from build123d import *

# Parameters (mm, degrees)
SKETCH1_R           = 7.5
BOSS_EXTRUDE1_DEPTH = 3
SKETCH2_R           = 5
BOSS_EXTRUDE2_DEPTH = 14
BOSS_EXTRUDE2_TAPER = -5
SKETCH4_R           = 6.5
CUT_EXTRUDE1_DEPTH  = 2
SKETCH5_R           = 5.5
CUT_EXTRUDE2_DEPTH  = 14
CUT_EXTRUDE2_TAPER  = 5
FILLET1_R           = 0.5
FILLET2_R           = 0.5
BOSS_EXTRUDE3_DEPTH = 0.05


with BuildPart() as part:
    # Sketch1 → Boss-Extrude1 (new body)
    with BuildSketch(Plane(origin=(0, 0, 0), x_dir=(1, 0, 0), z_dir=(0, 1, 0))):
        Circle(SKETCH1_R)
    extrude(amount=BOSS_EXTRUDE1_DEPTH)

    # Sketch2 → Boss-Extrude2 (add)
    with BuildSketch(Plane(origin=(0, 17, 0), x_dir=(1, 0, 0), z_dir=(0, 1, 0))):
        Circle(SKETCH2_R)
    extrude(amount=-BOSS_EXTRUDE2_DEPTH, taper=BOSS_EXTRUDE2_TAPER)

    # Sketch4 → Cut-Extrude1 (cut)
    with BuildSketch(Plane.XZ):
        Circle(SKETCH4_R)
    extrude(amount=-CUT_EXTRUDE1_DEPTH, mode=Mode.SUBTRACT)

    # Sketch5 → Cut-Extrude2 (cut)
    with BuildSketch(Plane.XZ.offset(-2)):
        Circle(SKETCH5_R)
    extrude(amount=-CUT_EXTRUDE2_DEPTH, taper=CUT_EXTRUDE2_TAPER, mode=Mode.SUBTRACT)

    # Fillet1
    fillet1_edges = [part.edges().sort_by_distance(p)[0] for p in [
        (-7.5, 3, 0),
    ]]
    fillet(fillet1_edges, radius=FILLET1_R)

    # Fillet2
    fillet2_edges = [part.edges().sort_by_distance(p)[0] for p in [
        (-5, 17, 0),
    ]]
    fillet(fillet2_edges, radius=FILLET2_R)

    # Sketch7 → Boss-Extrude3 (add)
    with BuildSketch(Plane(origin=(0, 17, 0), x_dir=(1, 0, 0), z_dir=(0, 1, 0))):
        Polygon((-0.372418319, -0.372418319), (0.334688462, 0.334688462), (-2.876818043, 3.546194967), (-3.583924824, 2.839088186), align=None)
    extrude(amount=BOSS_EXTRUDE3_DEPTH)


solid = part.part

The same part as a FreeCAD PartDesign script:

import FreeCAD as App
import Part
import Sketcher

V = App.Vector
Q = App.Units.Quantity


def edges_at(feature, points):
    """Names of the edges that pass closest to the given points."""
    edges = feature.Shape.Edges
    near = lambda p: min(range(len(edges)), key=lambda i: edges[i].distToShape(Part.Vertex(*p))[0])
    return sorted({f"Edge{near(p) + 1}" for p in points})

doc = App.newDocument("Part")
params = doc.addObject("Spreadsheet::Sheet", "Params")
for row, (alias, value) in enumerate([
    ("sketch1_diameter", "15 mm"),
    ("pad1_length", "3 mm"),
    ("sketch2_diameter", "10 mm"),
    ("pad2_length", "14 mm"),
    ("pad2_taper", "5 deg"),
    ("sketch3_diameter", "13 mm"),
    ("pocket1_length", "2 mm"),
    ("sketch4_diameter", "11 mm"),
    ("pocket2_length", "14 mm"),
    ("pocket2_taper", "-5 deg"),
    ("fillet_radius", "0.5 mm"),
    ("fillet2_radius", "0.5 mm"),
    ("sketch5_length", "1 mm"),
    ("pad3_length", "0.05 mm"),
], start=1):
    params.set(f"A{row}", alias)
    params.set(f"B{row}", "=" + value)
    params.setAlias(f"B{row}", alias)

body = doc.addObject("PartDesign::Body", "Body")

sketch1 = body.newObject("Sketcher::SketchObject", "Sketch")
sketch1.AttachmentSupport = (doc.getObject("XZ_Plane"), [""])
sketch1.MapMode = "FlatFace"
sketch1.addGeometry(Part.Circle(V(0, 0, 0), V(0, 0, 1), 8), False)
sketch1.addConstraint([
    Sketcher.Constraint("Coincident", 0, 3, -1, 1),
    Sketcher.Constraint("Diameter", 0, Q("15 mm")),
])
sketch1.setExpression("Constraints[1]", "Params.sketch1_diameter")
pad1 = body.newObject("PartDesign::Pad", "Pad")
pad1.Profile = sketch1
pad1.setExpression("Length", "Params.pad1_length")
pad1.Reversed = True

sketch2 = body.newObject("Sketcher::SketchObject", "Sketch001")
sketch2.AttachmentSupport = (doc.getObject("XZ_Plane"), [""])
sketch2.MapMode = "FlatFace"
sketch2.AttachmentOffset = App.Placement(V(0, 0, -17), App.Rotation())
sketch2.addGeometry(Part.Circle(V(0, 0, 0), V(0, 0, 1), 5), False)
sketch2.addConstraint([
    Sketcher.Constraint("Coincident", 0, 3, -1, 1),
    Sketcher.Constraint("Diameter", 0, Q("10 mm")),
])
sketch2.setExpression("Constraints[1]", "Params.sketch2_diameter")
pad2 = body.newObject("PartDesign::Pad", "Pad001")
pad2.Profile = sketch2
pad2.setExpression("Length", "Params.pad2_length")
pad2.setExpression("TaperAngle", "Params.pad2_taper")

sketch3 = body.newObject("Sketcher::SketchObject", "Sketch002")
sketch3.AttachmentSupport = (doc.getObject("XZ_Plane"), [""])
sketch3.MapMode = "FlatFace"
sketch3.addGeometry(Part.Circle(V(0, 0, 0), V(0, 0, 1), 6), False)
sketch3.addConstraint([
    Sketcher.Constraint("Coincident", 0, 3, -1, 1),
    Sketcher.Constraint("Diameter", 0, Q("13 mm")),
])
sketch3.setExpression("Constraints[1]", "Params.sketch3_diameter")
pocket1 = body.newObject("PartDesign::Pocket", "Pocket")
pocket1.Profile = sketch3
pocket1.setExpression("Length", "Params.pocket1_length")

sketch4 = body.newObject("Sketcher::SketchObject", "Sketch003")
sketch4.AttachmentSupport = (doc.getObject("XZ_Plane"), [""])
sketch4.MapMode = "FlatFace"
sketch4.AttachmentOffset = App.Placement(V(0, 0, -2), App.Rotation())
sketch4.addGeometry(Part.Circle(V(0, 0, 0), V(0, 0, 1), 6), False)
sketch4.addConstraint([
    Sketcher.Constraint("Coincident", 0, 3, -1, 1),
    Sketcher.Constraint("Diameter", 0, Q("11 mm")),
])
sketch4.setExpression("Constraints[1]", "Params.sketch4_diameter")
pocket2 = body.newObject("PartDesign::Pocket", "Pocket001")
pocket2.Profile = sketch4
pocket2.setExpression("Length", "Params.pocket2_length")
pocket2.setExpression("TaperAngle", "Params.pocket2_taper")
doc.recompute()

fillet = body.newObject("PartDesign::Fillet", "Fillet")
fillet.Base = (pocket2, edges_at(pocket2, [(-7.5, 3, 0)]))
fillet.setExpression("Radius", "Params.fillet_radius")
doc.recompute()

fillet2 = body.newObject("PartDesign::Fillet", "Fillet001")
fillet2.Base = (fillet, edges_at(fillet, [(-5, 17, 0)]))
fillet2.setExpression("Radius", "Params.fillet2_radius")

sketch5 = body.newObject("Sketcher::SketchObject", "Sketch004")
sketch5.AttachmentSupport = (doc.getObject("XZ_Plane"), [""])
sketch5.MapMode = "FlatFace"
sketch5.AttachmentOffset = App.Placement(V(0, 0, -17), App.Rotation())
sketch5.addGeometry([
    Part.LineSegment(V(-0.4, 0.4, 0), V(0.3, -0.3, 0)),
    Part.LineSegment(V(0.3, -0.3, 0), V(-2.9, -3.5, 0)),
    Part.LineSegment(V(-2.9, -3.5, 0), V(-3.6, -2.8, 0)),
    Part.LineSegment(V(-3.6, -2.8, 0), V(-0.4, 0.4, 0)),
], False)
sketch5.addConstraint([
    Sketcher.Constraint("Coincident", 0, 2, 1, 1),
    Sketcher.Constraint("Coincident", 1, 2, 2, 1),
    Sketcher.Constraint("Coincident", 2, 2, 3, 1),
    Sketcher.Constraint("Coincident", 3, 2, 0, 1),
    Sketcher.Constraint("Perpendicular", 0, 1),
    Sketcher.Constraint("Perpendicular", 1, 2),
    Sketcher.Constraint("Perpendicular", 2, 3),
    Sketcher.Constraint("Angle", 0, Q("-45 deg")),
    Sketcher.Constraint("Distance", 0, Q("1 mm")),
    Sketcher.Constraint("DistanceY", 2, 2, 0, 2, Q("2.5044 mm")),
    Sketcher.Constraint("DistanceX", -1, 1, 0, 2, Q("0.334688 mm")),
    Sketcher.Constraint("DistanceY", 0, 2, -1, 1, Q("0.334688 mm")),
])
sketch5.setExpression("Constraints[8]", "Params.sketch5_length")
pad3 = body.newObject("PartDesign::Pad", "Pad002")
pad3.Profile = sketch5
pad3.setExpression("Length", "Params.pad3_length")
pad3.Reversed = True

doc.recompute()
